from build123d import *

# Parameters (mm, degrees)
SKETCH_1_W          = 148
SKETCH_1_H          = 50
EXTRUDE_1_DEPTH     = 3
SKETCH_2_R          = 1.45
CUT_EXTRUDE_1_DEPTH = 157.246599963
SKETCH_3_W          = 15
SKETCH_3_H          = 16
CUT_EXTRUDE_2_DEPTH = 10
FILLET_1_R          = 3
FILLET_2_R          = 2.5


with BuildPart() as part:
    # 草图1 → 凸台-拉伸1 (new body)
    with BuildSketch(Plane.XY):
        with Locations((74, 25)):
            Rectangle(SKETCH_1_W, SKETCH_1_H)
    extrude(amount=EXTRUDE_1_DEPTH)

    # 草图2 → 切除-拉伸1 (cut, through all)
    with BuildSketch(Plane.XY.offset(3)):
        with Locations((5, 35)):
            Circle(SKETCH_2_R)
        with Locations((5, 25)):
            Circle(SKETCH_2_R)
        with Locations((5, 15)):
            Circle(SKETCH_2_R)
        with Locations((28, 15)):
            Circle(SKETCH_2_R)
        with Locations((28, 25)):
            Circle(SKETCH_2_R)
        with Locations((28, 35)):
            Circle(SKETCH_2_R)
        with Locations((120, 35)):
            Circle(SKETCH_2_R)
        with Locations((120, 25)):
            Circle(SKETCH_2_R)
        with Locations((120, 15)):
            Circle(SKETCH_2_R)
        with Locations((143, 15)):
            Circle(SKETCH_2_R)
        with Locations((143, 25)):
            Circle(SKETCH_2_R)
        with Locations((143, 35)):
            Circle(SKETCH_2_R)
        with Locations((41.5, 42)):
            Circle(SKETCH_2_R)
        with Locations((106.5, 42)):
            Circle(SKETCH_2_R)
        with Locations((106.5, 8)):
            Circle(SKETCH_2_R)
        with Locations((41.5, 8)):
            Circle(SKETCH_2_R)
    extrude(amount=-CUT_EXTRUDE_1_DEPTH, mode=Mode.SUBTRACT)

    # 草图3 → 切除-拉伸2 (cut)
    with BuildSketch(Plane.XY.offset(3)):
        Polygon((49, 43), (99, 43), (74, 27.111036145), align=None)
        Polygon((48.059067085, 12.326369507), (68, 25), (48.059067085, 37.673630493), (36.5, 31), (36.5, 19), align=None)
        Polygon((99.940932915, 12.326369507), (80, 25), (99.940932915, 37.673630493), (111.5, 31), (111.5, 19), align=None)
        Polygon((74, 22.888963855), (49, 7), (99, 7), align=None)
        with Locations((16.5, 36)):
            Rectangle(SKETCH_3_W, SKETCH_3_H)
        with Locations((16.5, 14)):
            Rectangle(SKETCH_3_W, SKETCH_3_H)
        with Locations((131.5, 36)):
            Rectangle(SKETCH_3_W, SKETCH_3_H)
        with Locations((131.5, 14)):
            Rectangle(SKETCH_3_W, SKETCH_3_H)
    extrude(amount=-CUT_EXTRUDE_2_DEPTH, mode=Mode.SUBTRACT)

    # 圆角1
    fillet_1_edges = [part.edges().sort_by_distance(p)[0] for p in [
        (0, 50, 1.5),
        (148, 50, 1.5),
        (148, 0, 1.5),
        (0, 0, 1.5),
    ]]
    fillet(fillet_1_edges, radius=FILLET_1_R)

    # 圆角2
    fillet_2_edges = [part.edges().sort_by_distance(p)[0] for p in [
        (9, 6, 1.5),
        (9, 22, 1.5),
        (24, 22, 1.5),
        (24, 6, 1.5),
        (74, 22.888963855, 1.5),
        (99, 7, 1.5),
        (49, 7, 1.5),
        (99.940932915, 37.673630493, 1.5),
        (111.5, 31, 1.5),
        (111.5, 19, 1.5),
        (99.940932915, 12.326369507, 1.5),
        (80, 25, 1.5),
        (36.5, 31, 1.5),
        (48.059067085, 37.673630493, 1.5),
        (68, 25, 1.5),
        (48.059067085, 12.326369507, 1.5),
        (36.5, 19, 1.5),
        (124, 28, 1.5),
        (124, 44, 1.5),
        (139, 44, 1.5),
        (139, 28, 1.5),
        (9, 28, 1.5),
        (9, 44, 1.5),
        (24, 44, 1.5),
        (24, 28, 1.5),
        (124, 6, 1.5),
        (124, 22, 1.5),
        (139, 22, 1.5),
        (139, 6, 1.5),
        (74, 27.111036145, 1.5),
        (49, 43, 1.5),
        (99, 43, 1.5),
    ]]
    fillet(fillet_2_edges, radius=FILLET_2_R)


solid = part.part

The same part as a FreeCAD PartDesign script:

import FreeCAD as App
import Part
import Sketcher
from FreeCAD import Vector
Q = App.Units.Quantity


def edges_at(feature, points):
    """Names of the edges that pass closest to the given points."""
    edges = feature.Shape.Edges
    near = lambda p: min(range(len(edges)), key=lambda i: edges[i].distToShape(Part.Vertex(*p))[0])
    return sorted({f"Edge{near(p) + 1}" for p in points})

doc = App.newDocument("Part")
body = doc.addObject("PartDesign::Body", "Body")

# Sketch on XY plane
sketch1 = body.newObject("Sketcher::SketchObject", "Sketch")
sketch1.AttachmentSupport = (doc.getObject("XY_Plane"), [""])
sketch1.MapMode = "FlatFace"
sketch1.addGeometry([
    Part.LineSegment(Vector(0, 50, 0), Vector(0, 0, 0)),
    Part.LineSegment(Vector(0, 0, 0), Vector(148, 0, 0)),
    Part.LineSegment(Vector(148, 0, 0), Vector(148, 50, 0)),
    Part.LineSegment(Vector(148, 50, 0), Vector(0, 50, 0)),
], False)
sketch1.addConstraint([
    Sketcher.Constraint("Coincident", 0, 2, 1, 1),
    Sketcher.Constraint("Coincident", 1, 2, 2, 1),
    Sketcher.Constraint("Coincident", 2, 2, 3, 1),
    Sketcher.Constraint("Coincident", 3, 2, 0, 1),
    Sketcher.Constraint("Vertical", 0),
    Sketcher.Constraint("Horizontal", 1),
    Sketcher.Constraint("Vertical", 2),
    Sketcher.Constraint("Horizontal", 3),
    Sketcher.Constraint("Coincident", 0, 2, -1, 1),
    Sketcher.Constraint("DistanceX", 1, 1, 1, 2, 148.0),
    Sketcher.Constraint("DistanceY", 0, 2, 0, 1, 50.0),
])
pad1 = body.newObject("PartDesign::Pad", "Pad")
pad1.Profile = sketch1
pad1.Length = 3

# Sketch on XY plane
sketch2 = body.newObject("Sketcher::SketchObject", "Sketch001")
sketch2.AttachmentSupport = (doc.getObject("XY_Plane"), [""])
sketch2.MapMode = "FlatFace"
sketch2.AttachmentOffset = App.Placement(Vector(0, 0, 3), App.Rotation())
sketch2.addGeometry([
    Part.Circle(Vector(5, 35, 0), Vector(0, 0, 1), 1.45),  # 0
    Part.Circle(Vector(5, 25, 0), Vector(0, 0, 1), 1.45),  # 1
    Part.Circle(Vector(5, 15, 0), Vector(0, 0, 1), 1.45),  # 2
    Part.Circle(Vector(28, 15, 0), Vector(0, 0, 1), 1.45),  # 3
    Part.Circle(Vector(28, 25, 0), Vector(0, 0, 1), 1.45),  # 4
    Part.Circle(Vector(28, 35, 0), Vector(0, 0, 1), 1.45),  # 5
    Part.Circle(Vector(120, 35, 0), Vector(0, 0, 1), 1.45),  # 6
    Part.Circle(Vector(120, 25, 0), Vector(0, 0, 1), 1.45),  # 7
    Part.Circle(Vector(120, 15, 0), Vector(0, 0, 1), 1.45),  # 8
    Part.Circle(Vector(143, 15, 0), Vector(0, 0, 1), 1.45),  # 9
    Part.Circle(Vector(143, 25, 0), Vector(0, 0, 1), 1.45),  # 10
    Part.Circle(Vector(143, 35, 0), Vector(0, 0, 1), 1.45),  # 11
    Part.Circle(Vector(41.5, 42, 0), Vector(0, 0, 1), 1.45),  # 12
    Part.Circle(Vector(106.5, 42, 0), Vector(0, 0, 1), 1.45),  # 13
    Part.Circle(Vector(106.5, 8, 0), Vector(0, 0, 1), 1.45),  # 14
    Part.Circle(Vector(41.5, 8, 0), Vector(0, 0, 1), 1.45),  # 15
], False)
sketch2.addConstraint([
    Sketcher.Constraint("Equal", 0, 1),
    Sketcher.Constraint("Equal", 1, 2),
    Sketcher.Constraint("Equal", 2, 3),
    Sketcher.Constraint("Equal", 3, 4),
    Sketcher.Constraint("Equal", 4, 5),
    Sketcher.Constraint("Equal", 5, 6),
    Sketcher.Constraint("Equal", 6, 7),
    Sketcher.Constraint("Equal", 7, 8),
    Sketcher.Constraint("Equal", 8, 9),
    Sketcher.Constraint("Equal", 9, 10),
    Sketcher.Constraint("Equal", 10, 11),
    Sketcher.Constraint("Equal", 11, 12),
    Sketcher.Constraint("Equal", 12, 13),
    Sketcher.Constraint("Equal", 13, 14),
    Sketcher.Constraint("Equal", 14, 15),
    Sketcher.Constraint("Horizontal", 2, 3, 3, 3),
    Sketcher.Constraint("Horizontal", 1, 3, 4, 3),
    Sketcher.Constraint("Horizontal", 0, 3, 5, 3),
    Sketcher.Constraint("Horizontal", 5, 3, 6, 3),
    Sketcher.Constraint("Horizontal", 4, 3, 7, 3),
    Sketcher.Constraint("Horizontal", 3, 3, 8, 3),
    Sketcher.Constraint("Horizontal", 8, 3, 9, 3),
    Sketcher.Constraint("Horizontal", 7, 3, 10, 3),
    Sketcher.Constraint("Horizontal", 6, 3, 11, 3),
    Sketcher.Constraint("Horizontal", 12, 3, 13, 3),
    Sketcher.Constraint("Horizontal", 14, 3, 15, 3),
    Sketcher.Constraint("Vertical", 0, 3, 1, 3),
    Sketcher.Constraint("Vertical", 1, 3, 2, 3),
    Sketcher.Constraint("Vertical", 3, 3, 4, 3),
    Sketcher.Constraint("Vertical", 4, 3, 5, 3),
    Sketcher.Constraint("Vertical", 6, 3, 7, 3),
    Sketcher.Constraint("Vertical", 7, 3, 8, 3),
    Sketcher.Constraint("Vertical", 9, 3, 10, 3),
    Sketcher.Constraint("Vertical", 10, 3, 11, 3),
    Sketcher.Constraint("Vertical", 13, 3, 14, 3),
    Sketcher.Constraint("Vertical", 12, 3, 15, 3),
    Sketcher.Constraint("Diameter", 0, 2.9),
    Sketcher.Constraint("DistanceX", -1, 1, 0, 3, 5.0),
    Sketcher.Constraint("DistanceY", -1, 1, 0, 3, 35.0),
    Sketcher.Constraint("DistanceY", -1, 1, 1, 3, 25.0),
    Sketcher.Constraint("DistanceY", -1, 1, 2, 3, 15.0),
    Sketcher.Constraint("DistanceX", -1, 1, 3, 3, 28.0),
    Sketcher.Constraint("DistanceX", -1, 1, 6, 3, 120.0),
    Sketcher.Constraint("DistanceX", -1, 1, 9, 3, 143.0),
    Sketcher.Constraint("DistanceY", -1, 1, 12, 3, 42.0),
    Sketcher.Constraint("DistanceY", -1, 1, 14, 3, 8.0),
    Sketcher.Constraint("DistanceX", -1, 1, 12, 3, 41.5),
    Sketcher.Constraint("DistanceX", -1, 1, 13, 3, 106.5),
])
pocket1 = body.newObject("PartDesign::Pocket", "Pocket")
pocket1.Profile = sketch2
pocket1.Type = "ThroughAll"

# Sketch on XY plane
sketch3 = body.newObject("Sketcher::SketchObject", "Sketch002")
sketch3.AttachmentSupport = (doc.getObject("XY_Plane"), [""])
sketch3.MapMode = "FlatFace"
sketch3.AttachmentOffset = App.Placement(Vector(0, 0, 3), App.Rotation())
sketch3.addGeometry([
    Part.LineSegment(Vector(99, 43, 0), Vector(49, 43, 0)),  # 0
    Part.LineSegment(Vector(49, 43, 0), Vector(74, 27.111036, 0)),  # 1
    Part.LineSegment(Vector(74, 27.111036, 0), Vector(99, 43, 0)),  # 2
    Part.LineSegment(Vector(48.059067, 12.32637, 0), Vector(68, 25, 0)),  # 3
    Part.LineSegment(Vector(68, 25, 0), Vector(48.059067, 37.67363, 0)),  # 4
    Part.LineSegment(Vector(48.059067, 37.67363, 0), Vector(36.5, 31, 0)),  # 5
    Part.LineSegment(Vector(36.5, 31, 0), Vector(36.5, 19, 0)),  # 6
    Part.LineSegment(Vector(36.5, 19, 0), Vector(48.059067, 12.32637, 0)),  # 7
    Part.LineSegment(Vector(80, 25, 0), Vector(99.940933, 12.32637, 0)),  # 8
    Part.LineSegment(Vector(99.940933, 12.32637, 0), Vector(111.5, 19, 0)),  # 9
    Part.LineSegment(Vector(111.5, 19, 0), Vector(111.5, 31, 0)),  # 10
    Part.LineSegment(Vector(111.5, 31, 0), Vector(99.940933, 37.67363, 0)),  # 11
    Part.LineSegment(Vector(99.940933, 37.67363, 0), Vector(80, 25, 0)),  # 12
    Part.LineSegment(Vector(74, 22.888964, 0), Vector(49, 7, 0)),  # 13
    Part.LineSegment(Vector(49, 7, 0), Vector(99, 7, 0)),  # 14
    Part.LineSegment(Vector(99, 7, 0), Vector(74, 22.888964, 0)),  # 15
    Part.LineSegment(Vector(9, 44, 0), Vector(9, 28, 0)),  # 16
    Part.LineSegment(Vector(9, 28, 0), Vector(24, 28, 0)),  # 17
    Part.LineSegment(Vector(24, 28, 0), Vector(24, 44, 0)),  # 18
    Part.LineSegment(Vector(24, 44, 0), Vector(9, 44, 0)),  # 19
    Part.LineSegment(Vector(9, 22, 0), Vector(9, 6, 0)),  # 20
    Part.LineSegment(Vector(9, 6, 0), Vector(24, 6, 0)),  # 21
    Part.LineSegment(Vector(24, 6, 0), Vector(24, 22, 0)),  # 22
    Part.LineSegment(Vector(24, 22, 0), Vector(9, 22, 0)),  # 23
    Part.LineSegment(Vector(124, 44, 0), Vector(124, 28, 0)),  # 24
    Part.LineSegment(Vector(124, 28, 0), Vector(139, 28, 0)),  # 25
    Part.LineSegment(Vector(139, 28, 0), Vector(139, 44, 0)),  # 26
    Part.LineSegment(Vector(139, 44, 0), Vector(124, 44, 0)),  # 27
    Part.LineSegment(Vector(124, 22, 0), Vector(124, 6, 0)),  # 28
    Part.LineSegment(Vector(124, 6, 0), Vector(139, 6, 0)),  # 29
    Part.LineSegment(Vector(139, 6, 0), Vector(139, 22, 0)),  # 30
    Part.LineSegment(Vector(139, 22, 0), Vector(124, 22, 0)),  # 31
], False)
sketch3.addConstraint([
    Sketcher.Constraint("Coincident", 0, 2, 1, 1),
    Sketcher.Constraint("Coincident", 1, 2, 2, 1),
    Sketcher.Constraint("Coincident", 2, 2, 0, 1),
    Sketcher.Constraint("Coincident", 3, 2, 4, 1),
    Sketcher.Constraint("Coincident", 4, 2, 5, 1),
    Sketcher.Constraint("Coincident", 5, 2, 6, 1),
    Sketcher.Constraint("Coincident", 6, 2, 7, 1),
    Sketcher.Constraint("Coincident", 7, 2, 3, 1),
    Sketcher.Constraint("Coincident", 8, 2, 9, 1),
    Sketcher.Constraint("Coincident", 9, 2, 10, 1),
    Sketcher.Constraint("Coincident", 10, 2, 11, 1),
    Sketcher.Constraint("Coincident", 11, 2, 12, 1),
    Sketcher.Constraint("Coincident", 12, 2, 8, 1),
    Sketcher.Constraint("Coincident", 13, 2, 14, 1),
    Sketcher.Constraint("Coincident", 14, 2, 15, 1),
    Sketcher.Constraint("Coincident", 15, 2, 13, 1),
    Sketcher.Constraint("Coincident", 16, 2, 17, 1),
    Sketcher.Constraint("Coincident", 17, 2, 18, 1),
    Sketcher.Constraint("Coincident", 18, 2, 19, 1),
    Sketcher.Constraint("Coincident", 19, 2, 16, 1),
    Sketcher.Constraint("Coincident", 20, 2, 21, 1),
    Sketcher.Constraint("Coincident", 21, 2, 22, 1),
    Sketcher.Constraint("Coincident", 22, 2, 23, 1),
    Sketcher.Constraint("Coincident", 23, 2, 20, 1),
    Sketcher.Constraint("Coincident", 24, 2, 25, 1),
    Sketcher.Constraint("Coincident", 25, 2, 26, 1),
    Sketcher.Constraint("Coincident", 26, 2, 27, 1),
    Sketcher.Constraint("Coincident", 27, 2, 24, 1),
    Sketcher.Constraint("Coincident", 28, 2, 29, 1),
    Sketcher.Constraint("Coincident", 29, 2, 30, 1),
    Sketcher.Constraint("Coincident", 30, 2, 31, 1),
    Sketcher.Constraint("Coincident", 31, 2, 28, 1),
    Sketcher.Constraint("Horizontal", 0),
    Sketcher.Constraint("Vertical", 6),
    Sketcher.Constraint("Vertical", 10),
    Sketcher.Constraint("Horizontal", 14),
    Sketcher.Constraint("Vertical", 16),
    Sketcher.Constraint("Horizontal", 17),
    Sketcher.Constraint("Vertical", 18),
    Sketcher.Constraint("Horizontal", 19),
    Sketcher.Constraint("Vertical", 20),
    Sketcher.Constraint("Horizontal", 21),
    Sketcher.Constraint("Vertical", 22),
    Sketcher.Constraint("Horizontal", 23),
    Sketcher.Constraint("Vertical", 24),
    Sketcher.Constraint("Horizontal", 25),
    Sketcher.Constraint("Vertical", 26),
    Sketcher.Constraint("Horizontal", 27),
    Sketcher.Constraint("Vertical", 28),
    Sketcher.Constraint("Horizontal", 29),
    Sketcher.Constraint("Vertical", 30),
    Sketcher.Constraint("Horizontal", 31),
    Sketcher.Constraint("Parallel", 2, 3),
    Sketcher.Constraint("Parallel", 1, 4),
    Sketcher.Constraint("Parallel", 4, 8),
    Sketcher.Constraint("Parallel", 5, 9),
    Sketcher.Constraint("Parallel", 7, 11),
    Sketcher.Constraint("Parallel", 3, 12),
    Sketcher.Constraint("Parallel", 12, 13),
    Sketcher.Constraint("Parallel", 8, 15),
    Sketcher.Constraint("Horizontal", 7, 2, 8, 2),
    Sketcher.Constraint("Horizontal", 6, 2, 9, 2),
    Sketcher.Constraint("Horizontal", 5, 2, 10, 2),
    Sketcher.Constraint("Horizontal", 4, 2, 11, 2),
    Sketcher.Constraint("Horizontal", 3, 2, 12, 2),
    Sketcher.Constraint("Horizontal", 17, 2, 24, 2),
    Sketcher.Constraint("Horizontal", 19, 2, 26, 2),
    Sketcher.Constraint("Horizontal", 21, 2, 28, 2),
    Sketcher.Constraint("Horizontal", 23, 2, 30, 2),
    Sketcher.Constraint("Vertical", 4, 2, 7, 2),
    Sketcher.Constraint("Vertical", 8, 2, 11, 2),
    Sketcher.Constraint("Vertical", 0, 2, 13, 2),
    Sketcher.Constraint("Vertical", 2, 2, 14, 2),
    Sketcher.Constraint("Vertical", 19, 2, 20, 2),
    Sketcher.Constraint("Vertical", 18, 2, 21, 2),
    Sketcher.Constraint("Vertical", 27, 2, 28, 2),
    Sketcher.Constraint("Vertical", 26, 2, 29, 2),
    Sketcher.Constraint("Equal", 23, 25),
    Sketcher.Constraint("Equal", 18, 20),
    Sketcher.Constraint("DistanceX", 0, 2, 0, 1, 50.0),
    Sketcher.Constraint("DistanceX", 17, 1, 17, 2, 15.0),
    Sketcher.Constraint("DistanceY", 6, 2, 6, 1, 12.0),
    Sketcher.Constraint("DistanceY", 16, 2, 16, 1, 16.0),
    Sketcher.Constraint("Angle", 5, Q("-150 deg")),
    Sketcher.Constraint("DistanceX", -1, 1, 0, 2, 49.0),
    Sketcher.Constraint("DistanceY", -1, 1, 0, 2, 43.0),
    Sketcher.Constraint("DistanceX", -1, 1, 3, 2, 68.0),
    Sketcher.Constraint("DistanceY", -1, 1, 3, 2, 25.0),
    Sketcher.Constraint("DistanceX", -1, 1, 12, 2, 80.0),
    Sketcher.Constraint("DistanceY", -1, 1, 13, 2, 7.0),
    Sketcher.Constraint("DistanceX", -1, 1, 16, 2, 9.0),
    Sketcher.Constraint("DistanceY", -1, 1, 16, 2, 28.0),
    Sketcher.Constraint("DistanceY", -1, 1, 20, 2, 6.0),
    Sketcher.Constraint("DistanceX", -1, 1, 24, 2, 124.0),
    Sketcher.Constraint("DistanceX", -1, 1, 5, 2, 36.5),
    Sketcher.Constraint("Distance", 5, 13.347261),
])
pocket2 = body.newObject("PartDesign::Pocket", "Pocket001")
pocket2.Profile = sketch3
pocket2.Length = 10
doc.recompute()

fillet = body.newObject("PartDesign::Fillet", "Fillet")
fillet.Base = (pocket2, edges_at(pocket2, [
    (0, 50, 1.5),
    (148, 50, 1.5),
    (148, 0, 1.5),
    (0, 0, 1.5),
]))
fillet.Radius = 3
doc.recompute()

fillet2 = body.newObject("PartDesign::Fillet", "Fillet001")
fillet2.Base = (fillet, edges_at(fillet, [
    (9, 6, 1.5),
    (9, 22, 1.5),
    (24, 22, 1.5),
    (24, 6, 1.5),
    (74, 22.889, 1.5),
    (99, 7, 1.5),
    (49, 7, 1.5),
    (99.941, 37.674, 1.5),
    (111.5, 31, 1.5),
    (111.5, 19, 1.5),
    (99.941, 12.326, 1.5),
    (80, 25, 1.5),
    (36.5, 31, 1.5),
    (48.059, 37.674, 1.5),
    (68, 25, 1.5),
    (48.059, 12.326, 1.5),
    (36.5, 19, 1.5),
    (124, 28, 1.5),
    (124, 44, 1.5),
    (139, 44, 1.5),
    (139, 28, 1.5),
    (9, 28, 1.5),
    (9, 44, 1.5),
    (24, 44, 1.5),
    (24, 28, 1.5),
    (124, 6, 1.5),
    (124, 22, 1.5),
    (139, 22, 1.5),
    (139, 6, 1.5),
    (74, 27.111, 1.5),
    (49, 43, 1.5),
    (99, 43, 1.5),
]))
fillet2.Radius = 2.5

doc.recompute()
